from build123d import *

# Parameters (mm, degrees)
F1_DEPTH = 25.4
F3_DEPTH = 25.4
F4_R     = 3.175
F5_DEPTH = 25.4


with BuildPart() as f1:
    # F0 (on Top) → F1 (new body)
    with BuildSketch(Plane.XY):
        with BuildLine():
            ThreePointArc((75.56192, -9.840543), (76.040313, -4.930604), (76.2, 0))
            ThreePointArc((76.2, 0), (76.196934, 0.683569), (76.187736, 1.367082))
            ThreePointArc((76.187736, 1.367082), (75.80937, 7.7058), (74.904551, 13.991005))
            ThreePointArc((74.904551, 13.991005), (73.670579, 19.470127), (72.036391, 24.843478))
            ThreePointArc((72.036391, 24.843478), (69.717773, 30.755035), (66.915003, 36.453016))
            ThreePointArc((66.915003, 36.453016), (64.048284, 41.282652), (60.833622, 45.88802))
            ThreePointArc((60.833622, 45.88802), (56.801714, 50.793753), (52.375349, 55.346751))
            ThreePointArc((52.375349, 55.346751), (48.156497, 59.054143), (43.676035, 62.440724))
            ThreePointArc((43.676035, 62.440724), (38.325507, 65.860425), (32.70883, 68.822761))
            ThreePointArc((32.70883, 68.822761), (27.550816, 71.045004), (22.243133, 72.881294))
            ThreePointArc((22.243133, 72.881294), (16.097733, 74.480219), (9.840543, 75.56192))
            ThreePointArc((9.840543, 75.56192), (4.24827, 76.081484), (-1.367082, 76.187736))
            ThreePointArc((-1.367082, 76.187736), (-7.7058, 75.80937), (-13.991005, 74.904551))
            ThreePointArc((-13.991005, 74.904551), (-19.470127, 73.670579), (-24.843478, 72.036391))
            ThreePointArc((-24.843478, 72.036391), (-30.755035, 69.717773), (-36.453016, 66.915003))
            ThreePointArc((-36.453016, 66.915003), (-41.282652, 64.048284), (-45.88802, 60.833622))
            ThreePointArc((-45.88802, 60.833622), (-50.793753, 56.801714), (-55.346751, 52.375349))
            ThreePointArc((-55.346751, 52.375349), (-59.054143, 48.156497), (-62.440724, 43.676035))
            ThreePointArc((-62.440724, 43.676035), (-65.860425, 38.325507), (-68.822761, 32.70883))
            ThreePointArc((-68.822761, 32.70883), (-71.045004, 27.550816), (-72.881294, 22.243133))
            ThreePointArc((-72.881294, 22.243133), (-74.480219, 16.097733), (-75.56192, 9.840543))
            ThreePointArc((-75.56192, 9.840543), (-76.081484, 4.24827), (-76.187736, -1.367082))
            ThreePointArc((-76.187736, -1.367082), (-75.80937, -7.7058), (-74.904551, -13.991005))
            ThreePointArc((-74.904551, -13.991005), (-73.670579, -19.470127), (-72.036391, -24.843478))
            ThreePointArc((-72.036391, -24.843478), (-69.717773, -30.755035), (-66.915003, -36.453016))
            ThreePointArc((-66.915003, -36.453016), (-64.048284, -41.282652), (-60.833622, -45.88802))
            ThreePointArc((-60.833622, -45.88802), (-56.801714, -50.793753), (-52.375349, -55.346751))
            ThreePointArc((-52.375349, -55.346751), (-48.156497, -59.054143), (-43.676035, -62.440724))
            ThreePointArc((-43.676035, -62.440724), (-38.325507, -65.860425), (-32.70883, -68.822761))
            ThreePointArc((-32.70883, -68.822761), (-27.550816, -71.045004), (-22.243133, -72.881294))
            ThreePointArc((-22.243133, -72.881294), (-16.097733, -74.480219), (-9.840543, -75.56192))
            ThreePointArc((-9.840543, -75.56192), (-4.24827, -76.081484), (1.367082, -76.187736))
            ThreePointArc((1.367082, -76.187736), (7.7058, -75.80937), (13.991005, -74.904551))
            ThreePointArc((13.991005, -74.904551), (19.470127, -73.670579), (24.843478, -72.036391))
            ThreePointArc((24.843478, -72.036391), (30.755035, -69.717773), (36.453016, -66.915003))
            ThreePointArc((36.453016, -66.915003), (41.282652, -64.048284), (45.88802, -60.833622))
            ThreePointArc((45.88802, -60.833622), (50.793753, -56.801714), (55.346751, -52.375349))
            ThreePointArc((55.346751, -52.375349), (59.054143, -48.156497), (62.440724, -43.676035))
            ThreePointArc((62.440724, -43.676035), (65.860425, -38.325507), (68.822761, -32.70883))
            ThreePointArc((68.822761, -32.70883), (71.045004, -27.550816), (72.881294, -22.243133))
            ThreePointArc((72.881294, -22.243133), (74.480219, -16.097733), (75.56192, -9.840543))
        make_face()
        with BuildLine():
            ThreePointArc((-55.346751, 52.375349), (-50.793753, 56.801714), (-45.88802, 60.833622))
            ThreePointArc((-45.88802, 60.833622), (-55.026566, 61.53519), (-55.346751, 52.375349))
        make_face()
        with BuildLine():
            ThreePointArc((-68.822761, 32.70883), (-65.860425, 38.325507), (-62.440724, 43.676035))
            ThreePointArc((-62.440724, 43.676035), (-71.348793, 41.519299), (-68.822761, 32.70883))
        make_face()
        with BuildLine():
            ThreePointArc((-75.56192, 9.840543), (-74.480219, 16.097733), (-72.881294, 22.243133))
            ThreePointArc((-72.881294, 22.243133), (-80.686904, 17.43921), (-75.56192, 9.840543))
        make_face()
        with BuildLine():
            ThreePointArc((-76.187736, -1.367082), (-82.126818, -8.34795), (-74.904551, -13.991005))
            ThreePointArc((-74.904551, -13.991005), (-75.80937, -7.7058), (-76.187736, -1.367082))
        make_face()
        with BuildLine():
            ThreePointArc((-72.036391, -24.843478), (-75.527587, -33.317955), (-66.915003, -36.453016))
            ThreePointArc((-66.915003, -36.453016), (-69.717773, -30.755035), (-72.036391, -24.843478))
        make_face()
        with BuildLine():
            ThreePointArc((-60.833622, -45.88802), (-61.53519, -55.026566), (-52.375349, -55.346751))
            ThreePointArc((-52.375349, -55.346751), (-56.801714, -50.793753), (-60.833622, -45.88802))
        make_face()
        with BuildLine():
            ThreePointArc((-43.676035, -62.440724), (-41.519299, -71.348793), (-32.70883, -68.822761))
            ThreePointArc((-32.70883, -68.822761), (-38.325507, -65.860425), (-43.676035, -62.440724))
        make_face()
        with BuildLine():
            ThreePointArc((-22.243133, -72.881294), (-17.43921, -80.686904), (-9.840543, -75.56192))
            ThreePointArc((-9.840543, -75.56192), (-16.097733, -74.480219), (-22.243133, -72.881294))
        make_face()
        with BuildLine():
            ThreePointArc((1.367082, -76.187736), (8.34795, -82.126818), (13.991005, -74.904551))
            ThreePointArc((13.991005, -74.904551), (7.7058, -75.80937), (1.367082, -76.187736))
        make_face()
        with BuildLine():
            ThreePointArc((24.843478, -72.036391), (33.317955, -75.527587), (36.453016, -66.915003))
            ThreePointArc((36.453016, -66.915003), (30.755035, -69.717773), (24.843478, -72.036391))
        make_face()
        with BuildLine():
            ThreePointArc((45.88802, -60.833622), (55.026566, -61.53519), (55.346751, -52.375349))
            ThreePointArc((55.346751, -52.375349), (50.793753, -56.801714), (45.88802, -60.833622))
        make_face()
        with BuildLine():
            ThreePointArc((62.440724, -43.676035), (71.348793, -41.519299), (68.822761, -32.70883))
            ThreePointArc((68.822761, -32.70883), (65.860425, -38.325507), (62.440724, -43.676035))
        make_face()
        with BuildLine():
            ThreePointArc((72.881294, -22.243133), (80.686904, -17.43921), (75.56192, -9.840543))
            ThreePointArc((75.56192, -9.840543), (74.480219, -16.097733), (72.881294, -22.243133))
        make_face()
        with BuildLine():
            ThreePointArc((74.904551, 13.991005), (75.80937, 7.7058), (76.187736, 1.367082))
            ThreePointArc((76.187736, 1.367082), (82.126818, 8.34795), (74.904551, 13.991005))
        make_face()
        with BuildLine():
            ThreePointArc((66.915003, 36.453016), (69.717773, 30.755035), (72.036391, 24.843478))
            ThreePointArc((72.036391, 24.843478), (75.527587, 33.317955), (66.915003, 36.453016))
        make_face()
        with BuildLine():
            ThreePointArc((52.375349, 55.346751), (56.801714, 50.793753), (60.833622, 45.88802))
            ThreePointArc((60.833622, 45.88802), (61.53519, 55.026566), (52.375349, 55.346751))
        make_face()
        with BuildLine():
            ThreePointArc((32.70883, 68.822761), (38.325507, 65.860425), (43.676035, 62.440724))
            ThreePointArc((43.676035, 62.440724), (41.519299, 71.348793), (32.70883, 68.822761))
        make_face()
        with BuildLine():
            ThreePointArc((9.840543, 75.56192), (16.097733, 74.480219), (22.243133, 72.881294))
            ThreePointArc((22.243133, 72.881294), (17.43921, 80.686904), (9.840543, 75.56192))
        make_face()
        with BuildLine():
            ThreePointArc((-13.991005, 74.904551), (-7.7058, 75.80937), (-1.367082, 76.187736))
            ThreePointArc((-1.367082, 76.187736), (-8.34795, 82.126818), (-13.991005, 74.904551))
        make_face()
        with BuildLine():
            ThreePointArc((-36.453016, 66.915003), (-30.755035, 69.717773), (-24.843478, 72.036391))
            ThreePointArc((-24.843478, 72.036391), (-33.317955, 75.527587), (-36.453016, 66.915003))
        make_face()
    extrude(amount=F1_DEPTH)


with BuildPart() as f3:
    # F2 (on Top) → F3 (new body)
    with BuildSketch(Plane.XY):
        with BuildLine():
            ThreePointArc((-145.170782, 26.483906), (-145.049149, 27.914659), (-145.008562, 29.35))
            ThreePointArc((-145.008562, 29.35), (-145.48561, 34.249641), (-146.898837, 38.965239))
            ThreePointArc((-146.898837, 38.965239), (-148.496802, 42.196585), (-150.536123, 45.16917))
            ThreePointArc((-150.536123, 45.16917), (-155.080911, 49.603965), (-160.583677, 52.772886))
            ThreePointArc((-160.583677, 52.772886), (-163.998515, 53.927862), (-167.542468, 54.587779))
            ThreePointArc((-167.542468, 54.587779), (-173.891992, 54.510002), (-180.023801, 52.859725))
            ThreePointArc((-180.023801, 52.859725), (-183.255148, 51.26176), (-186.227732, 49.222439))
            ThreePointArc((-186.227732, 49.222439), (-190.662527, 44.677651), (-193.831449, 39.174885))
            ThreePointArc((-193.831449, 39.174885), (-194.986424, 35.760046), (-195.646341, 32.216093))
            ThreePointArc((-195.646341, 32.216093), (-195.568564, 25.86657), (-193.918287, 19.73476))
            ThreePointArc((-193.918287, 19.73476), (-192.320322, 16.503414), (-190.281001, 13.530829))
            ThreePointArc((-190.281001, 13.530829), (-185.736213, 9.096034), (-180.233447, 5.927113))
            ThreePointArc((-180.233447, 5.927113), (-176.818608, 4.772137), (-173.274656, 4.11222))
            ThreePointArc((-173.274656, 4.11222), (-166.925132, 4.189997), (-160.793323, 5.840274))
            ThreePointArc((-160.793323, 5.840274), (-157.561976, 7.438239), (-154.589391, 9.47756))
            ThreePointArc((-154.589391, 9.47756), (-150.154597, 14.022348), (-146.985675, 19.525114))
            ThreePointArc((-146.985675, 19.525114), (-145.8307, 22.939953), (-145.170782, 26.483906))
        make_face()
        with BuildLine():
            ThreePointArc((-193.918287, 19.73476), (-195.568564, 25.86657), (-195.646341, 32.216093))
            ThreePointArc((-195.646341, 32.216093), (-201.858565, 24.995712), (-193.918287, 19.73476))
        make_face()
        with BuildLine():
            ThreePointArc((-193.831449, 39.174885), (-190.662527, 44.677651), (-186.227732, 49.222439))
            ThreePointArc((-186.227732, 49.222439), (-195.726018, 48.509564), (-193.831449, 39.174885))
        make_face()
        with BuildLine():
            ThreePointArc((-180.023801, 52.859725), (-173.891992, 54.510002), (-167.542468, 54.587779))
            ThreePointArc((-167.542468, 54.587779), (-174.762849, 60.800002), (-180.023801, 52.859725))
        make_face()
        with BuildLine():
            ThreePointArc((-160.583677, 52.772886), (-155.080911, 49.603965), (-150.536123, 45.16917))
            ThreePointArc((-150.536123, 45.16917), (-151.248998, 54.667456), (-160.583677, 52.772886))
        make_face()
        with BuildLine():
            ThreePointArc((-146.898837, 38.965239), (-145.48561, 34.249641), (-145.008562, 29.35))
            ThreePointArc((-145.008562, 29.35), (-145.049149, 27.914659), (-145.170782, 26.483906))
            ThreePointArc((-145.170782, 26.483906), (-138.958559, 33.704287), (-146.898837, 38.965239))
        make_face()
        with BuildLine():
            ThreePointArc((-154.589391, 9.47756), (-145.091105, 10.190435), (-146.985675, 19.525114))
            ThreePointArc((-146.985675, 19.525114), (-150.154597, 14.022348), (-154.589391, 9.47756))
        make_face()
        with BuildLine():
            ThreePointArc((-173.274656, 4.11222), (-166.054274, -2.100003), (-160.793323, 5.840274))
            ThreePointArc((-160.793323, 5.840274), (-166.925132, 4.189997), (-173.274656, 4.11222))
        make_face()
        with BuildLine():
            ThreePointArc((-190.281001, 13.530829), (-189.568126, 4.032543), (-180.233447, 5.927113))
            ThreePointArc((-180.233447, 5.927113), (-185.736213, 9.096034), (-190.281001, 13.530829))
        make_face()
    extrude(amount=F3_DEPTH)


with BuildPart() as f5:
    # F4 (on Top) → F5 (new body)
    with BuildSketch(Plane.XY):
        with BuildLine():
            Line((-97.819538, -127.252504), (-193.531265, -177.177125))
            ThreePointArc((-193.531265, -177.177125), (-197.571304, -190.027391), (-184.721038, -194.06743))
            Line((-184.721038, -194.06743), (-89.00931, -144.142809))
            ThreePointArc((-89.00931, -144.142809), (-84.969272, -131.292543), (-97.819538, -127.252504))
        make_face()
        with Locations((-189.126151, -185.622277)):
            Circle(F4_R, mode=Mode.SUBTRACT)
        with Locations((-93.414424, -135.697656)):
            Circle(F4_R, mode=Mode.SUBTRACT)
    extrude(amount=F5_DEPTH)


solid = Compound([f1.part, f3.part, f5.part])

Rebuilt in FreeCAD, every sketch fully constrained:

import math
import FreeCAD as App
import Part
import Sketcher
Q = App.Units.Quantity

doc = App.newDocument("Part")
params = doc.addObject("Spreadsheet::Sheet", "Params")
for row, (alias, value) in enumerate([
    ("sketch1_radius", "0.25 in"),
    ("sketch1_radius2", "0.25 in"),
    ("sketch1_radius3", "0.25 in"),
    ("sketch1_radius4", "0.25 in"),
    ("sketch1_radius5", "0.25 in"),
    ("pad1_length", "1 in"),
    ("sketch2_radius", "0.9999999 in"),
    ("sketch2_radius2", "0.25 in"),
    ("pad2_length", "1 in"),
    ("sketch3_diameter", "0.25 in"),
    ("sketch3_radius", "0.375 in"),
    ("sketch3_length", "4.25 in"),
    ("pad3_length", "1 in"),
], start=1):
    params.set(f"A{row}", alias)
    params.set(f"B{row}", "=" + value)
    params.setAlias(f"B{row}", alias)

body = doc.addObject("PartDesign::Body", "Body")

# Sketch on XY plane
sketch1 = body.newObject("Sketcher::SketchObject", "Sketch")
sketch1.AttachmentSupport = (doc.getObject("XY_Plane"), [""])
sketch1.MapMode = "FlatFace"
sketch1.addGeometry(Part.ArcOfCircle(Part.Circle(App.Vector(0.000114, -0.000009, 0), App.Vector(0, 0, 1), 76.199886), math.radians(-7.41996), math.radians(0.000007)), False)
sketch1.addGeometry(Part.ArcOfCircle(Part.Circle(App.Vector(0.00042, 0.000015, 0), App.Vector(0, 0, 1), 76.19958), math.radians(-0.000011), math.radians(1.027977)), False)
sketch1.addGeometry(Part.ArcOfCircle(Part.Circle(App.Vector(75.80937, 7.7058, 0), App.Vector(0, 0, 1), 6.35), math.radians(-86.583999), math.radians(98.192028)), False)
sketch1.addGeometry(Part.ArcOfCircle(Part.Circle(App.Vector(0.000119, 0.000034, 0), App.Vector(0, 0, 1), 76.199877), math.radians(10.580036), math.radians(19.027988)), False)
sketch1.addGeometry(Part.ArcOfCircle(Part.Circle(App.Vector(69.717773, 30.755035, 0), App.Vector(0, 0, 1), 6.35), math.radians(-68.584001), math.radians(116.192029)), False)
sketch1.addGeometry(Part.ArcOfCircle(Part.Circle(App.Vector(0.000135, 0.000084, 0), App.Vector(0, 0, 1), 76.199841), math.radians(28.580038), math.radians(37.027993)), False)
sketch1.addGeometry(Part.ArcOfCircle(Part.Circle(App.Vector(56.801714, 50.793753, 0), App.Vector(0, 0, 1), 6.35), math.radians(-50.584011), math.radians(134.192032)), False)
sketch1.addGeometry(Part.ArcOfCircle(Part.Circle(App.Vector(-0.000045, -0.000054, 0), App.Vector(0, 0, 1), 76.200071), math.radians(46.580047), math.radians(55.027978)), False)
sketch1.addGeometry(Part.ArcOfCircle(Part.Circle(App.Vector(38.325507, 65.860424, 0), App.Vector(0, 0, 1), 6.35), math.radians(-32.583997), math.radians(152.192027)), False)
sketch1.addGeometry(Part.ArcOfCircle(Part.Circle(App.Vector(0.000061, 0.000156, 0), App.Vector(0, 0, 1), 76.199833), math.radians(64.580035), math.radians(73.027992)), False)
sketch1.addGeometry(Part.ArcOfCircle(Part.Circle(App.Vector(16.097733, 74.480219, 0), App.Vector(0, 0, 1), 6.35), math.radians(-14.584003), math.radians(170.192025)), False)
sketch1.addGeometry(Part.ArcOfCircle(Part.Circle(App.Vector(-0.000004, -0.000072, 0), App.Vector(0, 0, 1), 76.200072), math.radians(82.580048), math.radians(91.027978)), False)
sketch1.addGeometry(Part.ArcOfCircle(Part.Circle(App.Vector(-7.7058, 75.80937, 0), App.Vector(0, 0, 1), 6.35), math.radians(3.416001), math.radians(188.192028)), False)
sketch1.addGeometry(Part.ArcOfCircle(Part.Circle(App.Vector(-0.000034, 0.000119, 0), App.Vector(0, 0, 1), 76.199877), math.radians(100.580036), math.radians(109.027988)), False)
sketch1.addGeometry(Part.ArcOfCircle(Part.Circle(App.Vector(-30.755035, 69.717773, 0), App.Vector(0, 0, 1), 6.35), math.radians(21.415999), math.radians(206.192029)), False)
sketch1.addGeometry(Part.ArcOfCircle(Part.Circle(App.Vector(-0.000084, 0.000135, 0), App.Vector(0, 0, 1), 76.199841), math.radians(118.580038), math.radians(127.027993)), False)
sketch1.addGeometry(Part.ArcOfCircle(Part.Circle(App.Vector(-50.793753, 56.801714, 0), App.Vector(0, 0, 1), 6.35), math.radians(39.415989), math.radians(224.192032)), False)
sketch1.addGeometry(Part.ArcOfCircle(Part.Circle(App.Vector(0.000054, -0.000045, 0), App.Vector(0, 0, 1), 76.200071), math.radians(136.580047), math.radians(145.027978)), False)
sketch1.addGeometry(Part.ArcOfCircle(Part.Circle(App.Vector(-65.860424, 38.325507, 0), App.Vector(0, 0, 1), 6.35), math.radians(57.416003), math.radians(242.192027)), False)
sketch1.addGeometry(Part.ArcOfCircle(Part.Circle(App.Vector(-0.000156, 0.000061, 0), App.Vector(0, 0, 1), 76.199833), math.radians(154.580035), math.radians(163.027992)), False)
sketch1.addGeometry(Part.ArcOfCircle(Part.Circle(App.Vector(-74.480219, 16.097733, 0), App.Vector(0, 0, 1), 6.35), math.radians(75.415997), math.radians(260.192025)), False)
sketch1.addGeometry(Part.ArcOfCircle(Part.Circle(App.Vector(0.000072, -0.000004, 0), App.Vector(0, 0, 1), 76.200072), math.radians(172.580048), math.radians(181.027978)), False)
sketch1.addGeometry(Part.ArcOfCircle(Part.Circle(App.Vector(-75.80937, -7.7058, 0), App.Vector(0, 0, 1), 6.35), math.radians(93.416001), math.radians(278.192028)), False)
sketch1.addGeometry(Part.ArcOfCircle(Part.Circle(App.Vector(-0.000119, -0.000034, 0), App.Vector(0, 0, 1), 76.199877), math.radians(-169.419964), math.radians(-160.972012)), False)
sketch1.addGeometry(Part.ArcOfCircle(Part.Circle(App.Vector(-69.717773, -30.755035, 0), App.Vector(0, 0, 1), 6.35), math.radians(111.415999), math.radians(296.192029)), False)
sketch1.addGeometry(Part.ArcOfCircle(Part.Circle(App.Vector(-0.000135, -0.000084, 0), App.Vector(0, 0, 1), 76.199841), math.radians(-151.419962), math.radians(-142.972007)), False)
sketch1.addGeometry(Part.ArcOfCircle(Part.Circle(App.Vector(-56.801714, -50.793753, 0), App.Vector(0, 0, 1), 6.35), math.radians(129.415989), math.radians(314.192032)), False)
sketch1.addGeometry(Part.ArcOfCircle(Part.Circle(App.Vector(0.000045, 0.000054, 0), App.Vector(0, 0, 1), 76.200071), math.radians(-133.419953), math.radians(-124.972022)), False)
sketch1.addGeometry(Part.ArcOfCircle(Part.Circle(App.Vector(-38.325507, -65.860424, 0), App.Vector(0, 0, 1), 6.35), math.radians(147.416003), math.radians(332.192027)), False)
sketch1.addGeometry(Part.ArcOfCircle(Part.Circle(App.Vector(-0.000061, -0.000156, 0), App.Vector(0, 0, 1), 76.199833), math.radians(-115.419965), math.radians(-106.972008)), False)
sketch1.addGeometry(Part.ArcOfCircle(Part.Circle(App.Vector(-16.097733, -74.480219, 0), App.Vector(0, 0, 1), 6.35), math.radians(165.415997), math.radians(350.192025)), False)
sketch1.addGeometry(Part.ArcOfCircle(Part.Circle(App.Vector(0.000004, 0.000072, 0), App.Vector(0, 0, 1), 76.200072), math.radians(-97.419952), math.radians(-88.972022)), False)
sketch1.addGeometry(Part.ArcOfCircle(Part.Circle(App.Vector(7.7058, -75.80937, 0), App.Vector(0, 0, 1), 6.35), math.radians(-176.583999), math.radians(8.192028)), False)
sketch1.addGeometry(Part.ArcOfCircle(Part.Circle(App.Vector(0.000034, -0.000119, 0), App.Vector(0, 0, 1), 76.199877), math.radians(-79.419964), math.radians(-70.972012)), False)
sketch1.addGeometry(Part.ArcOfCircle(Part.Circle(App.Vector(30.755035, -69.717773, 0), App.Vector(0, 0, 1), 6.35), math.radians(-158.584001), math.radians(26.192029)), False)
sketch1.addGeometry(Part.ArcOfCircle(Part.Circle(App.Vector(0.000084, -0.000135, 0), App.Vector(0, 0, 1), 76.199841), math.radians(-61.419962), math.radians(-52.972007)), False)
sketch1.addGeometry(Part.ArcOfCircle(Part.Circle(App.Vector(50.793753, -56.801714, 0), App.Vector(0, 0, 1), 6.35), math.radians(-140.584011), math.radians(44.192032)), False)
sketch1.addGeometry(Part.ArcOfCircle(Part.Circle(App.Vector(-0.000054, 0.000045, 0), App.Vector(0, 0, 1), 76.200071), math.radians(-43.419953), math.radians(-34.972022)), False)
sketch1.addGeometry(Part.ArcOfCircle(Part.Circle(App.Vector(65.860424, -38.325507, 0), App.Vector(0, 0, 1), 6.35), math.radians(-122.583997), math.radians(62.192027)), False)
sketch1.addGeometry(Part.ArcOfCircle(Part.Circle(App.Vector(0.000156, -0.000061, 0), App.Vector(0, 0, 1), 76.199833), math.radians(-25.419965), math.radians(-16.972008)), False)
sketch1.addGeometry(Part.ArcOfCircle(Part.Circle(App.Vector(74.480219, -16.097733, 0), App.Vector(0, 0, 1), 6.35), math.radians(-104.584003), math.radians(80.192025)), False)
sketch1.addConstraint(Sketcher.Constraint("Coincident", 0, 2, 1, 1))
sketch1.addConstraint(Sketcher.Constraint("Coincident", 1, 2, 2, 1))
sketch1.addConstraint(Sketcher.Constraint("Coincident", 2, 2, 3, 1))
sketch1.addConstraint(Sketcher.Constraint("Coincident", 3, 2, 4, 1))
sketch1.addConstraint(Sketcher.Constraint("Coincident", 4, 2, 5, 1))
sketch1.addConstraint(Sketcher.Constraint("Coincident", 5, 2, 6, 1))
sketch1.addConstraint(Sketcher.Constraint("Coincident", 6, 2, 7, 1))
sketch1.addConstraint(Sketcher.Constraint("Coincident", 7, 2, 8, 1))
sketch1.addConstraint(Sketcher.Constraint("Coincident", 8, 2, 9, 1))
sketch1.addConstraint(Sketcher.Constraint("Coincident", 9, 2, 10, 1))
sketch1.addConstraint(Sketcher.Constraint("Coincident", 10, 2, 11, 1))
sketch1.addConstraint(Sketcher.Constraint("Coincident", 11, 2, 12, 1))
sketch1.addConstraint(Sketcher.Constraint("Coincident", 12, 2, 13, 1))
sketch1.addConstraint(Sketcher.Constraint("Coincident", 13, 2, 14, 1))
sketch1.addConstraint(Sketcher.Constraint("Coincident", 14, 2, 15, 1))
sketch1.addConstraint(Sketcher.Constraint("Coincident", 15, 2, 16, 1))
sketch1.addConstraint(Sketcher.Constraint("Coincident", 16, 2, 17, 1))
sketch1.addConstraint(Sketcher.Constraint("Coincident", 17, 2, 18, 1))
sketch1.addConstraint(Sketcher.Constraint("Coincident", 18, 2, 19, 1))
sketch1.addConstraint(Sketcher.Constraint("Coincident", 19, 2, 20, 1))
sketch1.addConstraint(Sketcher.Constraint("Coincident", 20, 2, 21, 1))
sketch1.addConstraint(Sketcher.Constraint("Coincident", 21, 2, 22, 1))
sketch1.addConstraint(Sketcher.Constraint("Coincident", 22, 2, 23, 1))
sketch1.addConstraint(Sketcher.Constraint("Coincident", 23, 2, 24, 1))
sketch1.addConstraint(Sketcher.Constraint("Coincident", 24, 2, 25, 1))
sketch1.addConstraint(Sketcher.Constraint("Coincident", 25, 2, 26, 1))
sketch1.addConstraint(Sketcher.Constraint("Coincident", 26, 2, 27, 1))
sketch1.addConstraint(Sketcher.Constraint("Coincident", 27, 2, 28, 1))
sketch1.addConstraint(Sketcher.Constraint("Coincident", 28, 2, 29, 1))
sketch1.addConstraint(Sketcher.Constraint("Coincident", 29, 2, 30, 1))
sketch1.addConstraint(Sketcher.Constraint("Coincident", 30, 2, 31, 1))
sketch1.addConstraint(Sketcher.Constraint("Coincident", 31, 2, 32, 1))
sketch1.addConstraint(Sketcher.Constraint("Coincident", 32, 2, 33, 1))
sketch1.addConstraint(Sketcher.Constraint("Coincident", 33, 2, 34, 1))
sketch1.addConstraint(Sketcher.Constraint("Coincident", 34, 2, 35, 1))
sketch1.addConstraint(Sketcher.Constraint("Coincident", 35, 2, 36, 1))
sketch1.addConstraint(Sketcher.Constraint("Coincident", 36, 2, 37, 1))
sketch1.addConstraint(Sketcher.Constraint("Coincident", 37, 2, 38, 1))
sketch1.addConstraint(Sketcher.Constraint("Coincident", 38, 2, 39, 1))
sketch1.addConstraint(Sketcher.Constraint("Coincident", 39, 2, 40, 1))
sketch1.addConstraint(Sketcher.Constraint("Coincident", 40, 2, 0, 1))
sketch1.addConstraint(Sketcher.Constraint("PointOnObject", 0, 2, -1))
sketch1.addConstraint(Sketcher.Constraint("Radius", 2, Q("0.25 in")))
sketch1.addConstraint(Sketcher.Constraint("Radius", 4, Q("0.25 in")))
sketch1.addConstraint(Sketcher.Constraint("Radius", 6, Q("0.25 in")))
sketch1.addConstraint(Sketcher.Constraint("Radius", 8, Q("0.25 in")))
sketch1.addConstraint(Sketcher.Constraint("Radius", 10, Q("0.25 in")))
sketch1.addConstraint(Sketcher.Constraint("Radius", 12, Q("0.25 in")))
sketch1.addConstraint(Sketcher.Constraint("Radius", 14, Q("0.25 in")))
sketch1.addConstraint(Sketcher.Constraint("Radius", 16, Q("0.25 in")))
sketch1.addConstraint(Sketcher.Constraint("Radius", 18, Q("0.25 in")))
sketch1.addConstraint(Sketcher.Constraint("Radius", 20, Q("0.25 in")))
sketch1.addConstraint(Sketcher.Constraint("Radius", 22, Q("0.25 in")))
sketch1.addConstraint(Sketcher.Constraint("Radius", 24, Q("0.25 in")))
sketch1.addConstraint(Sketcher.Constraint("Radius", 26, Q("0.25 in")))
sketch1.addConstraint(Sketcher.Constraint("Radius", 28, Q("0.25 in")))
sketch1.addConstraint(Sketcher.Constraint("Radius", 30, Q("0.25 in")))
sketch1.addConstraint(Sketcher.Constraint("Radius", 32, Q("0.25 in")))
sketch1.addConstraint(Sketcher.Constraint("Radius", 34, Q("0.25 in")))
sketch1.addConstraint(Sketcher.Constraint("Radius", 36, Q("0.25 in")))
sketch1.addConstraint(Sketcher.Constraint("Radius", 38, Q("0.25 in")))
sketch1.addConstraint(Sketcher.Constraint("Radius", 40, Q("0.25 in")))
sketch1.addConstraint(Sketcher.Constraint("DistanceX", -1, 1, 0, 2, Q("3 in")))
sketch1.addConstraint(Sketcher.Constraint("Radius", 1, 76.19958))
sketch1.addConstraint(Sketcher.Constraint("Radius", 5, 76.199841))
sketch1.addConstraint(Sketcher.Constraint("Radius", 7, 76.200071))
sketch1.addConstraint(Sketcher.Constraint("Radius", 11, 76.200072))
sketch1.addConstraint(Sketcher.Constraint("Radius", 15, 76.199841))
sketch1.addConstraint(Sketcher.Constraint("Radius", 17, 76.200071))
sketch1.addConstraint(Sketcher.Constraint("Radius", 21, 76.200072))
sketch1.addConstraint(Sketcher.Constraint("Radius", 25, 76.199841))
sketch1.addConstraint(Sketcher.Constraint("Radius", 27, 76.200071))
sketch1.addConstraint(Sketcher.Constraint("Radius", 31, 76.200072))
sketch1.addConstraint(Sketcher.Constraint("Radius", 35, 76.199841))
sketch1.addConstraint(Sketcher.Constraint("Radius", 37, 76.200071))
sketch1.addConstraint(Sketcher.Constraint("Radius", 0, 76.199886))
sketch1.addConstraint(Sketcher.Constraint("Radius", 3, 76.199877))
sketch1.addConstraint(Sketcher.Constraint("Radius", 9, 76.199833))
sketch1.addConstraint(Sketcher.Constraint("Radius", 13, 76.199877))
sketch1.addConstraint(Sketcher.Constraint("Radius", 19, 76.199833))
sketch1.addConstraint(Sketcher.Constraint("Radius", 23, 76.199877))
sketch1.addConstraint(Sketcher.Constraint("Radius", 29, 76.199833))
sketch1.addConstraint(Sketcher.Constraint("Radius", 33, 76.199877))
sketch1.addConstraint(Sketcher.Constraint("Radius", 39, 76.199833))
sketch1.addConstraint(Sketcher.Constraint("DistanceY", -1, 1, 2, 3, 7.7058))
sketch1.addConstraint(Sketcher.Constraint("DistanceX", 12, 3, -1, 1, 7.7058))
sketch1.addConstraint(Sketcher.Constraint("DistanceY", 22, 3, -1, 1, 7.7058))
sketch1.addConstraint(Sketcher.Constraint("DistanceX", -1, 1, 32, 3, 7.7058))
sketch1.addConstraint(Sketcher.Constraint("DistanceX", -1, 1, 2, 3, 75.80937))
sketch1.addConstraint(Sketcher.Constraint("DistanceX", -1, 1, 3, 3, 0.000119))
sketch1.addConstraint(Sketcher.Constraint("DistanceY", -1, 1, 10, 3, 74.480219))
sketch1.addConstraint(Sketcher.Constraint("DistanceY", -1, 1, 12, 3, 75.80937))
sketch1.addConstraint(Sketcher.Constraint("DistanceY", -1, 1, 13, 3, 0.000119))
sketch1.addConstraint(Sketcher.Constraint("DistanceX", 20, 3, -1, 1, 74.480219))
sketch1.addConstraint(Sketcher.Constraint("DistanceX", 22, 3, -1, 1, 75.80937))
sketch1.addConstraint(Sketcher.Constraint("DistanceX", 23, 3, -1, 1, 0.000119))
sketch1.addConstraint(Sketcher.Constraint("DistanceY", 30, 3, -1, 1, 74.480219))
sketch1.addConstraint(Sketcher.Constraint("DistanceY", 32, 3, -1, 1, 75.80937))
sketch1.addConstraint(Sketcher.Constraint("DistanceY", 33, 3, -1, 1, 0.000119))
sketch1.addConstraint(Sketcher.Constraint("DistanceX", -1, 1, 40, 3, 74.480219))
sketch1.addConstraint(Sketcher.Constraint("DistanceX", -1, 1, 2, 2, 74.904551))
sketch1.addConstraint(Sketcher.Constraint("DistanceX", -1, 1, 3, 2, 72.036391))
sketch1.addConstraint(Sketcher.Constraint("DistanceY", -1, 1, 5, 2, 45.88802))
sketch1.addConstraint(Sketcher.Constraint("DistanceX", -1, 1, 6, 2, 52.375349))
sketch1.addConstraint(Sketcher.Constraint("DistanceY", -1, 1, 6, 2, 55.346751))
sketch1.addConstraint(Sketcher.Constraint("DistanceX", -1, 1, 8, 2, 32.70883))
sketch1.addConstraint(Sketcher.Constraint("DistanceY", -1, 1, 8, 2, 68.822761))
sketch1.addConstraint(Sketcher.Constraint("DistanceY", -1, 1, 10, 2, 75.56192))
sketch1.addConstraint(Sketcher.Constraint("DistanceY", -1, 1, 12, 2, 74.904551))
sketch1.addConstraint(Sketcher.Constraint("DistanceY", -1, 1, 13, 2, 72.036391))
sketch1.addConstraint(Sketcher.Constraint("DistanceX", 15, 2, -1, 1, 45.88802))
sketch1.addConstraint(Sketcher.Constraint("DistanceX", 16, 2, -1, 1, 55.346751))
sketch1.addConstraint(Sketcher.Constraint("DistanceY", -1, 1, 16, 2, 52.375349))
sketch1.addConstraint(Sketcher.Constraint("DistanceX", 18, 2, -1, 1, 68.822761))
sketch1.addConstraint(Sketcher.Constraint("DistanceY", -1, 1, 18, 2, 32.70883))
sketch1.addConstraint(Sketcher.Constraint("DistanceX", 20, 2, -1, 1, 75.56192))
sketch1.addConstraint(Sketcher.Constraint("DistanceX", 22, 2, -1, 1, 74.904551))
sketch1.addConstraint(Sketcher.Constraint("DistanceX", 23, 2, -1, 1, 72.036391))
sketch1.addConstraint(Sketcher.Constraint("DistanceY", 25, 2, -1, 1, 45.88802))
sketch1.addConstraint(Sketcher.Constraint("DistanceX", 26, 2, -1, 1, 52.375349))
sketch1.addConstraint(Sketcher.Constraint("DistanceY", 26, 2, -1, 1, 55.346751))
sketch1.addConstraint(Sketcher.Constraint("DistanceX", 28, 2, -1, 1, 32.70883))
sketch1.addConstraint(Sketcher.Constraint("DistanceY", 28, 2, -1, 1, 68.822761))
sketch1.addConstraint(Sketcher.Constraint("DistanceY", 30, 2, -1, 1, 75.56192))
sketch1.addConstraint(Sketcher.Constraint("DistanceY", 32, 2, -1, 1, 74.904551))
sketch1.addConstraint(Sketcher.Constraint("DistanceY", 33, 2, -1, 1, 72.036391))
sketch1.addConstraint(Sketcher.Constraint("DistanceX", -1, 1, 35, 2, 45.88802))
sketch1.addConstraint(Sketcher.Constraint("DistanceX", -1, 1, 36, 2, 55.346751))
sketch1.addConstraint(Sketcher.Constraint("DistanceY", 36, 2, -1, 1, 52.375349))
sketch1.addConstraint(Sketcher.Constraint("DistanceX", -1, 1, 38, 2, 68.822761))
sketch1.addConstraint(Sketcher.Constraint("DistanceY", 38, 2, -1, 1, 32.70883))
sketch1.addConstraint(Sketcher.Constraint("DistanceX", -1, 1, 40, 2, 75.56192))
sketch1.addConstraint(Sketcher.Constraint("DistanceX", -1, 1, 4, 3, 69.717773))
sketch1.addConstraint(Sketcher.Constraint("DistanceX", -1, 1, 5, 3, 0.000135))
sketch1.addConstraint(Sketcher.Constraint("DistanceX", -1, 1, 6, 3, 56.801714))
sketch1.addConstraint(Sketcher.Constraint("DistanceX", -1, 1, 8, 3, 38.325507))
sketch1.addConstraint(Sketcher.Constraint("DistanceY", -1, 1, 9, 3, 0.000156))
sketch1.addConstraint(Sketcher.Constraint("DistanceX", -1, 1, 10, 3, 16.097733))
sketch1.addConstraint(Sketcher.Constraint("DistanceX", 14, 3, -1, 1, 30.755035))
sketch1.addConstraint(Sketcher.Constraint("DistanceY", -1, 1, 15, 3, 0.000135))
sketch1.addConstraint(Sketcher.Constraint("DistanceX", 16, 3, -1, 1, 50.793753))
sketch1.addConstraint(Sketcher.Constraint("DistanceX", 18, 3, -1, 1, 65.860424))
sketch1.addConstraint(Sketcher.Constraint("DistanceX", 19, 3, -1, 1, 0.000156))
sketch1.addConstraint(Sketcher.Constraint("DistanceY", -1, 1, 20, 3, 16.097733))
sketch1.addConstraint(Sketcher.Constraint("DistanceX", 24, 3, -1, 1, 69.717773))
sketch1.addConstraint(Sketcher.Constraint("DistanceX", 25, 3, -1, 1, 0.000135))
sketch1.addConstraint(Sketcher.Constraint("DistanceX", 26, 3, -1, 1, 56.801714))
sketch1.addConstraint(Sketcher.Constraint("DistanceX", 28, 3, -1, 1, 38.325507))
sketch1.addConstraint(Sketcher.Constraint("DistanceY", 29, 3, -1, 1, 0.000156))
sketch1.addConstraint(Sketcher.Constraint("DistanceX", 30, 3, -1, 1, 16.097733))
sketch1.addConstraint(Sketcher.Constraint("DistanceX", -1, 1, 34, 3, 30.755035))
sketch1.addConstraint(Sketcher.Constraint("DistanceY", 35, 3, -1, 1, 0.000135))
sketch1.addConstraint(Sketcher.Constraint("DistanceX", -1, 1, 36, 3, 50.793753))
sketch1.addConstraint(Sketcher.Constraint("DistanceX", -1, 1, 38, 3, 65.860424))
sketch1.addConstraint(Sketcher.Constraint("DistanceX", -1, 1, 39, 3, 0.000156))
sketch1.addConstraint(Sketcher.Constraint("DistanceY", 40, 3, -1, 1, 16.097733))
sketch1.addConstraint(Sketcher.Constraint("DistanceX", -1, 1, 1, 2, 76.187736))
sketch1.addConstraint(Sketcher.Constraint("DistanceY", -1, 1, 7, 2, 62.440724))
sketch1.addConstraint(Sketcher.Constraint("DistanceY", -1, 1, 11, 2, 76.187736))
sketch1.addConstraint(Sketcher.Constraint("DistanceX", 17, 2, -1, 1, 62.440724))
sketch1.addConstraint(Sketcher.Constraint("DistanceX", 21, 2, -1, 1, 76.187736))
sketch1.addConstraint(Sketcher.Constraint("DistanceY", 27, 2, -1, 1, 62.440724))
sketch1.addConstraint(Sketcher.Constraint("DistanceY", 31, 2, -1, 1, 76.187736))
sketch1.addConstraint(Sketcher.Constraint("DistanceX", -1, 1, 37, 2, 62.440724))
sketch1.setExpression("Constraints[42]", "Params.sketch1_radius")
sketch1.setExpression("Constraints[43]", "Params.sketch1_radius2")
sketch1.setExpression("Constraints[44]", "Params.sketch1_radius3")
sketch1.setExpression("Constraints[45]", "Params.sketch1_radius4")
sketch1.setExpression("Constraints[46]", "Params.sketch1_radius5")
pad1 = body.newObject("PartDesign::Pad", "Pad")
pad1.Profile = sketch1
pad1.setExpression("Length", "Params.pad1_length")
body2 = doc.addObject("PartDesign::Body", "Body001")

# Sketch on XY plane
sketch2 = body2.newObject("Sketcher::SketchObject", "Sketch001")
sketch2.AttachmentSupport = (doc.getObject("XY_Plane001"), [""])
sketch2.MapMode = "FlatFace"
sketch2.addGeometry(Part.ArcOfCircle(Part.Circle(App.Vector(-170, 29, 0), App.Vector(0, 0, 1), 25), math.radians(22.24), math.radians(38.52)), False)
sketch2.addGeometry(Part.ArcOfCircle(Part.Circle(App.Vector(-155, 50, 0), App.Vector(0, 0, 1), 6), math.radians(-44), math.radians(150)), False)
sketch2.addGeometry(Part.ArcOfCircle(Part.Circle(App.Vector(-170, 29, 0), App.Vector(0, 0, 1), 25), math.radians(67.24), math.radians(83.52)), False)
sketch2.addGeometry(Part.ArcOfCircle(Part.Circle(App.Vector(-174, 55, 0), App.Vector(0, 0, 1), 6), math.radians(1), math.radians(195)), False)
sketch2.addGeometry(Part.ArcOfCircle(Part.Circle(App.Vector(-170, 29, 0), App.Vector(0, 0, 1), 25), math.radians(112.24), math.radians(128.52)), False)
sketch2.addGeometry(Part.ArcOfCircle(Part.Circle(App.Vector(-191, 45, 0), App.Vector(0, 0, 1), 6), math.radians(46), math.radians(240)), False)
sketch2.addGeometry(Part.ArcOfCircle(Part.Circle(App.Vector(-170, 29, 0), App.Vector(0, 0, 1), 25), math.radians(157.24), math.radians(173.52)), False)
sketch2.addGeometry(Part.ArcOfCircle(Part.Circle(App.Vector(-196, 26, 0), App.Vector(0, 0, 1), 6), math.radians(91), math.radians(285)), False)
sketch2.addGeometry(Part.ArcOfCircle(Part.Circle(App.Vector(-170, 29, 0), App.Vector(0, 0, 1), 25), math.radians(-157.76), math.radians(-141.48)), False)
sketch2.addGeometry(Part.ArcOfCircle(Part.Circle(App.Vector(-186, 9, 0), App.Vector(0, 0, 1), 6), math.radians(136), math.radians(330)), False)
sketch2.addGeometry(Part.ArcOfCircle(Part.Circle(App.Vector(-170, 29, 0), App.Vector(0, 0, 1), 25), math.radians(-112.76), math.radians(-96.48)), False)
sketch2.addGeometry(Part.ArcOfCircle(Part.Circle(App.Vector(-167, 4, 0), App.Vector(0, 0, 1), 6), math.radians(-179), math.radians(15)), False)
sketch2.addGeometry(Part.ArcOfCircle(Part.Circle(App.Vector(-170, 29, 0), App.Vector(0, 0, 1), 25), math.radians(-67.76), math.radians(-51.48)), False)
sketch2.addGeometry(Part.ArcOfCircle(Part.Circle(App.Vector(-150, 14, 0), App.Vector(0, 0, 1), 6), math.radians(-134), math.radians(60)), False)
sketch2.addGeometry(Part.ArcOfCircle(Part.Circle(App.Vector(-170, 29, 0), App.Vector(0, 0, 1), 25), math.radians(-22.76), math.radians(-6.48)), False)
sketch2.addGeometry(Part.ArcOfCircle(Part.Circle(App.Vector(-145, 33, 0), App.Vector(0, 0, 1), 6), math.radians(-89), math.radians(105)), False)
sketch2.addConstraint(Sketcher.Constraint("Coincident", 0, 2, 1, 1))
sketch2.addConstraint(Sketcher.Constraint("Coincident", 1, 2, 2, 1))
sketch2.addConstraint(Sketcher.Constraint("Coincident", 2, 2, 3, 1))
sketch2.addConstraint(Sketcher.Constraint("Coincident", 3, 2, 4, 1))
sketch2.addConstraint(Sketcher.Constraint("Coincident", 4, 2, 5, 1))
sketch2.addConstraint(Sketcher.Constraint("Coincident", 5, 2, 6, 1))
sketch2.addConstraint(Sketcher.Constraint("Coincident", 6, 2, 7, 1))
sketch2.addConstraint(Sketcher.Constraint("Coincident", 7, 2, 8, 1))
sketch2.addConstraint(Sketcher.Constraint("Coincident", 8, 2, 9, 1))
sketch2.addConstraint(Sketcher.Constraint("Coincident", 9, 2, 10, 1))
sketch2.addConstraint(Sketcher.Constraint("Coincident", 10, 2, 11, 1))
sketch2.addConstraint(Sketcher.Constraint("Coincident", 11, 2, 12, 1))
sketch2.addConstraint(Sketcher.Constraint("Coincident", 12, 2, 13, 1))
sketch2.addConstraint(Sketcher.Constraint("Coincident", 13, 2, 14, 1))
sketch2.addConstraint(Sketcher.Constraint("Coincident", 14, 2, 15, 1))
sketch2.addConstraint(Sketcher.Constraint("Coincident", 15, 2, 0, 1))
sketch2.addConstraint(Sketcher.Constraint("Coincident", 12, 3, 6, 3))
sketch2.addConstraint(Sketcher.Constraint("Equal", 1, 3))
sketch2.addConstraint(Sketcher.Constraint("Equal", 3, 5))
sketch2.addConstraint(Sketcher.Constraint("Equal", 5, 7))
sketch2.addConstraint(Sketcher.Constraint("Equal", 0, 8))
sketch2.addConstraint(Sketcher.Constraint("Equal", 7, 9))
sketch2.addConstraint(Sketcher.Constraint("Equal", 9, 11))
sketch2.addConstraint(Sketcher.Constraint("Equal", 6, 12))
sketch2.addConstraint(Sketcher.Constraint("Equal", 11, 13))
sketch2.addConstraint(Sketcher.Constraint("Equal", 13, 15))
sketch2.addConstraint(Sketcher.Constraint("Vertical", 2, 3, 8, 3))
sketch2.addConstraint(Sketcher.Constraint("Radius", 6, Q("0.9999999 in")))
sketch2.addConstraint(Sketcher.Constraint("Radius", 1, Q("0.25 in")))
sketch2.addConstraint(Sketcher.Constraint("Radius", 0, 25.400016))
sketch2.addConstraint(Sketcher.Constraint("Radius", 2, 25.399933))
sketch2.addConstraint(Sketcher.Constraint("Radius", 4, 25.399966))
sketch2.addConstraint(Sketcher.Constraint("Radius", 10, 25.399958))
sketch2.addConstraint(Sketcher.Constraint("Radius", 14, 25.400047))
sketch2.addConstraint(Sketcher.Constraint("DistanceX", 5, 3, 6, 3, Q("0.7974001 in")))
sketch2.addConstraint(Sketcher.Constraint("DistanceY", 8, 3, 1, 3, Q("0.7973998 in")))
sketch2.addConstraint(Sketcher.Constraint("DistanceY", 9, 3, 0, 3, Q("0.7973998 in")))
sketch2.addConstraint(Sketcher.Constraint("DistanceX", 12, 3, 13, 3, Q("0.7974001 in")))
sketch2.addConstraint(Sketcher.Constraint("DistanceY", -1, 1, 3, 3, 54.510001))
sketch2.addConstraint(Sketcher.Constraint("DistanceY", -1, 1, 6, 3, 29.350002))
sketch2.addConstraint(Sketcher.Constraint("DistanceX", 3, 2, -1, 1, 180.023801))
sketch2.addConstraint(Sketcher.Constraint("DistanceX", 8, 2, -1, 1, 190.281001))
sketch2.addConstraint(Sketcher.Constraint("DistanceY", 2, 3, 1, 3, 20.253899))
sketch2.addConstraint(Sketcher.Constraint("DistanceX", 7, 3, 6, 3, 25.160001))
sketch2.addConstraint(Sketcher.Constraint("DistanceX", 12, 3, 15, 3, 25.16))
sketch2.addConstraint(Sketcher.Constraint("DistanceY", -1, 1, 0, 3, 29.34999))
sketch2.addConstraint(Sketcher.Constraint("DistanceX", 1, 3, -1, 1, 155.080911))
sketch2.addConstraint(Sketcher.Constraint("DistanceX", 3, 3, -1, 1, 173.891992))
sketch2.addConstraint(Sketcher.Constraint("DistanceY", -1, 1, 4, 3, 29.35003))
sketch2.addConstraint(Sketcher.Constraint("DistanceY", -1, 1, 5, 3, 44.677651))
sketch2.addConstraint(Sketcher.Constraint("DistanceY", -1, 1, 7, 3, 25.866569))
sketch2.addConstraint(Sketcher.Constraint("DistanceX", 8, 3, -1, 1, 170.408548))
sketch2.addConstraint(Sketcher.Constraint("DistanceY", -1, 1, 8, 3, 29.350009))
sketch2.addConstraint(Sketcher.Constraint("DistanceX", 10, 3, -1, 1, 170.408571))
sketch2.addConstraint(Sketcher.Constraint("DistanceX", 12, 3, -1, 1, 170.40856))
sketch2.addConstraint(Sketcher.Constraint("DistanceY", -1, 1, 15, 3, 32.83343))
sketch2.addConstraint(Sketcher.Constraint("DistanceY", -1, 1, 0, 2, 45.16917))
sketch2.addConstraint(Sketcher.Constraint("DistanceY", -1, 1, 10, 2, 4.11222))
sketch2.addConstraint(Sketcher.Constraint("DistanceX", 12, 2, -1, 1, 154.589391))
sketch2.addConstraint(Sketcher.Constraint("DistanceX", 9, 3, 11, 3, 18.811081))
sketch2.addConstraint(Sketcher.Constraint("DistanceY", 11, 3, 10, 3, 25.15996))
sketch2.addConstraint(Sketcher.Constraint("DistanceX", 13, 3, 13, 2, 3.168921))
sketch2.addConstraint(Sketcher.Constraint("DistanceX", 0, 2, 14, 2, 5.365341))
sketch2.setExpression("Constraints[27]", "Params.sketch2_radius")
sketch2.setExpression("Constraints[28]", "Params.sketch2_radius2")
pad2 = body2.newObject("PartDesign::Pad", "Pad001")
pad2.Profile = sketch2
pad2.setExpression("Length", "Params.pad2_length")
body3 = doc.addObject("PartDesign::Body", "Body002")

# Sketch on XY plane
sketch3 = body3.newObject("Sketcher::SketchObject", "Sketch002")
sketch3.AttachmentSupport = (doc.getObject("XY_Plane002"), [""])
sketch3.MapMode = "FlatFace"
sketch3.addGeometry(Part.LineSegment(App.Vector(-97.8, -127.3, 0), App.Vector(-193.5, -177.2, 0)), False)
sketch3.addGeometry(Part.ArcOfCircle(Part.Circle(App.Vector(-189.1, -185.6, 0), App.Vector(0, 0, 1), 9.5), math.radians(118), math.radians(298)), False)
sketch3.addGeometry(Part.LineSegment(App.Vector(-184.7, -194.1, 0), App.Vector(-89, -144.1, 0)), False)
sketch3.addGeometry(Part.ArcOfCircle(Part.Circle(App.Vector(-93.4, -135.7, 0), App.Vector(0, 0, 1), 9.5), math.radians(-62), math.radians(118)), False)
sketch3.addGeometry(Part.Circle(App.Vector(-189.1, -185.6, 0), App.Vector(0, 0, 1), 3.2), False)
sketch3.addGeometry(Part.Circle(App.Vector(-93.4, -135.7, 0), App.Vector(0, 0, 1), 3.2), False)
sketch3.addConstraint(Sketcher.Constraint("Tangent", 0, 2, 1, 1))
sketch3.addConstraint(Sketcher.Constraint("Tangent", 1, 2, 2, 1))
sketch3.addConstraint(Sketcher.Constraint("Tangent", 2, 2, 3, 1))
sketch3.addConstraint(Sketcher.Constraint("Tangent", 3, 2, 0, 1))
sketch3.addConstraint(Sketcher.Constraint("Coincident", 4, 3, 1, 3))
sketch3.addConstraint(Sketcher.Constraint("Coincident", 5, 3, 3, 3))
sketch3.addConstraint(Sketcher.Constraint("Equal", 1, 3))
sketch3.addConstraint(Sketcher.Constraint("Equal", 4, 5))
sketch3.addConstraint(Sketcher.Constraint("Diameter", 4, Q("0.25 in")))
sketch3.addConstraint(Sketcher.Constraint("Radius", 1, Q("0.375 in")))
sketch3.addConstraint(Sketcher.Constraint("Distance", 0, Q("4.25 in")))
sketch3.addConstraint(Sketcher.Constraint("DistanceX", 1, 3, -1, 1, 189.126151))
sketch3.addConstraint(Sketcher.Constraint("DistanceY", 1, 2, -1, 1, 194.06743))
sketch3.addConstraint(Sketcher.Constraint("DistanceX", 2, 2, -1, 1, 89.00931))
sketch3.setExpression("Constraints[8]", "Params.sketch3_diameter")
sketch3.setExpression("Constraints[9]", "Params.sketch3_radius")
sketch3.setExpression("Constraints[10]", "Params.sketch3_length")
pad3 = body3.newObject("PartDesign::Pad", "Pad002")
pad3.Profile = sketch3
pad3.setExpression("Length", "Params.pad3_length")

doc.recompute()
